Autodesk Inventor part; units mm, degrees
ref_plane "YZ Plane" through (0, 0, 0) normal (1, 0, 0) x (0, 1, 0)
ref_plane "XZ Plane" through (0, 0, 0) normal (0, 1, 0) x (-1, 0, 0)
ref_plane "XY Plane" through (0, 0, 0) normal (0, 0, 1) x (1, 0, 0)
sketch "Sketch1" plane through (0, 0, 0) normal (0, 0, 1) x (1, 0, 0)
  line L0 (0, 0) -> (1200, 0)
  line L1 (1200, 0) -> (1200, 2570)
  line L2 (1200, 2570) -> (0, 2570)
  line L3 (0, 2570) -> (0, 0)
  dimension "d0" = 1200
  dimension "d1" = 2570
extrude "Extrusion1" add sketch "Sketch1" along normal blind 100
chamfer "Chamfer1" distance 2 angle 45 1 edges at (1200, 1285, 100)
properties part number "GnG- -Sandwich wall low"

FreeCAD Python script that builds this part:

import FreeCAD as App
import Part
import Sketcher

V = App.Vector
Q = App.Units.Quantity


def edges_at(feature, points):
    """Names of the edges that pass closest to the given points."""
    edges = feature.Shape.Edges
    near = lambda p: min(range(len(edges)), key=lambda i: edges[i].distToShape(Part.Vertex(*p))[0])
    return sorted({f"Edge{near(p) + 1}" for p in points})

doc = App.newDocument("Part")
body = doc.addObject("PartDesign::Body", "Body")

# Sketch on XY plane
sketch1 = body.newObject("Sketcher::SketchObject", "Sketch")
sketch1.AttachmentSupport = (doc.getObject("XY_Plane"), [""])
sketch1.MapMode = "FlatFace"
sketch1.addGeometry(Part.LineSegment(V(0, 2570, 0), V(0, 0, 0)), False)
sketch1.addGeometry(Part.LineSegment(V(0, 0, 0), V(1200, 0, 0)), False)
sketch1.addGeometry(Part.LineSegment(V(1200, 0, 0), V(1200, 2570, 0)), False)
sketch1.addGeometry(Part.LineSegment(V(1200, 2570, 0), V(0, 2570, 0)), False)
sketch1.addConstraint(Sketcher.Constraint("Coincident", 0, 2, 1, 1))
sketch1.addConstraint(Sketcher.Constraint("Coincident", 1, 2, 2, 1))
sketch1.addConstraint(Sketcher.Constraint("Coincident", 2, 2, 3, 1))
sketch1.addConstraint(Sketcher.Constraint("Coincident", 3, 2, 0, 1))
sketch1.addConstraint(Sketcher.Constraint("Vertical", 0))
sketch1.addConstraint(Sketcher.Constraint("Horizontal", 1))
sketch1.addConstraint(Sketcher.Constraint("Vertical", 2))
sketch1.addConstraint(Sketcher.Constraint("Horizontal", 3))
sketch1.addConstraint(Sketcher.Constraint("Coincident", 0, 2, -1, 1))
sketch1.addConstraint(Sketcher.Constraint("DistanceX", 1, 1, 1, 2, Q("1200 mm")))
sketch1.addConstraint(Sketcher.Constraint("DistanceY", 0, 2, 0, 1, Q("2570 mm")))
pad1 = body.newObject("PartDesign::Pad", "Pad")
pad1.Profile = sketch1
pad1.Length = 100
doc.recompute()

chamfer = body.newObject("PartDesign::Chamfer", "Chamfer")
chamfer.Base = (pad1, edges_at(pad1, [(1200, 1285, 100)]))
chamfer.Size = 2

doc.recompute()
